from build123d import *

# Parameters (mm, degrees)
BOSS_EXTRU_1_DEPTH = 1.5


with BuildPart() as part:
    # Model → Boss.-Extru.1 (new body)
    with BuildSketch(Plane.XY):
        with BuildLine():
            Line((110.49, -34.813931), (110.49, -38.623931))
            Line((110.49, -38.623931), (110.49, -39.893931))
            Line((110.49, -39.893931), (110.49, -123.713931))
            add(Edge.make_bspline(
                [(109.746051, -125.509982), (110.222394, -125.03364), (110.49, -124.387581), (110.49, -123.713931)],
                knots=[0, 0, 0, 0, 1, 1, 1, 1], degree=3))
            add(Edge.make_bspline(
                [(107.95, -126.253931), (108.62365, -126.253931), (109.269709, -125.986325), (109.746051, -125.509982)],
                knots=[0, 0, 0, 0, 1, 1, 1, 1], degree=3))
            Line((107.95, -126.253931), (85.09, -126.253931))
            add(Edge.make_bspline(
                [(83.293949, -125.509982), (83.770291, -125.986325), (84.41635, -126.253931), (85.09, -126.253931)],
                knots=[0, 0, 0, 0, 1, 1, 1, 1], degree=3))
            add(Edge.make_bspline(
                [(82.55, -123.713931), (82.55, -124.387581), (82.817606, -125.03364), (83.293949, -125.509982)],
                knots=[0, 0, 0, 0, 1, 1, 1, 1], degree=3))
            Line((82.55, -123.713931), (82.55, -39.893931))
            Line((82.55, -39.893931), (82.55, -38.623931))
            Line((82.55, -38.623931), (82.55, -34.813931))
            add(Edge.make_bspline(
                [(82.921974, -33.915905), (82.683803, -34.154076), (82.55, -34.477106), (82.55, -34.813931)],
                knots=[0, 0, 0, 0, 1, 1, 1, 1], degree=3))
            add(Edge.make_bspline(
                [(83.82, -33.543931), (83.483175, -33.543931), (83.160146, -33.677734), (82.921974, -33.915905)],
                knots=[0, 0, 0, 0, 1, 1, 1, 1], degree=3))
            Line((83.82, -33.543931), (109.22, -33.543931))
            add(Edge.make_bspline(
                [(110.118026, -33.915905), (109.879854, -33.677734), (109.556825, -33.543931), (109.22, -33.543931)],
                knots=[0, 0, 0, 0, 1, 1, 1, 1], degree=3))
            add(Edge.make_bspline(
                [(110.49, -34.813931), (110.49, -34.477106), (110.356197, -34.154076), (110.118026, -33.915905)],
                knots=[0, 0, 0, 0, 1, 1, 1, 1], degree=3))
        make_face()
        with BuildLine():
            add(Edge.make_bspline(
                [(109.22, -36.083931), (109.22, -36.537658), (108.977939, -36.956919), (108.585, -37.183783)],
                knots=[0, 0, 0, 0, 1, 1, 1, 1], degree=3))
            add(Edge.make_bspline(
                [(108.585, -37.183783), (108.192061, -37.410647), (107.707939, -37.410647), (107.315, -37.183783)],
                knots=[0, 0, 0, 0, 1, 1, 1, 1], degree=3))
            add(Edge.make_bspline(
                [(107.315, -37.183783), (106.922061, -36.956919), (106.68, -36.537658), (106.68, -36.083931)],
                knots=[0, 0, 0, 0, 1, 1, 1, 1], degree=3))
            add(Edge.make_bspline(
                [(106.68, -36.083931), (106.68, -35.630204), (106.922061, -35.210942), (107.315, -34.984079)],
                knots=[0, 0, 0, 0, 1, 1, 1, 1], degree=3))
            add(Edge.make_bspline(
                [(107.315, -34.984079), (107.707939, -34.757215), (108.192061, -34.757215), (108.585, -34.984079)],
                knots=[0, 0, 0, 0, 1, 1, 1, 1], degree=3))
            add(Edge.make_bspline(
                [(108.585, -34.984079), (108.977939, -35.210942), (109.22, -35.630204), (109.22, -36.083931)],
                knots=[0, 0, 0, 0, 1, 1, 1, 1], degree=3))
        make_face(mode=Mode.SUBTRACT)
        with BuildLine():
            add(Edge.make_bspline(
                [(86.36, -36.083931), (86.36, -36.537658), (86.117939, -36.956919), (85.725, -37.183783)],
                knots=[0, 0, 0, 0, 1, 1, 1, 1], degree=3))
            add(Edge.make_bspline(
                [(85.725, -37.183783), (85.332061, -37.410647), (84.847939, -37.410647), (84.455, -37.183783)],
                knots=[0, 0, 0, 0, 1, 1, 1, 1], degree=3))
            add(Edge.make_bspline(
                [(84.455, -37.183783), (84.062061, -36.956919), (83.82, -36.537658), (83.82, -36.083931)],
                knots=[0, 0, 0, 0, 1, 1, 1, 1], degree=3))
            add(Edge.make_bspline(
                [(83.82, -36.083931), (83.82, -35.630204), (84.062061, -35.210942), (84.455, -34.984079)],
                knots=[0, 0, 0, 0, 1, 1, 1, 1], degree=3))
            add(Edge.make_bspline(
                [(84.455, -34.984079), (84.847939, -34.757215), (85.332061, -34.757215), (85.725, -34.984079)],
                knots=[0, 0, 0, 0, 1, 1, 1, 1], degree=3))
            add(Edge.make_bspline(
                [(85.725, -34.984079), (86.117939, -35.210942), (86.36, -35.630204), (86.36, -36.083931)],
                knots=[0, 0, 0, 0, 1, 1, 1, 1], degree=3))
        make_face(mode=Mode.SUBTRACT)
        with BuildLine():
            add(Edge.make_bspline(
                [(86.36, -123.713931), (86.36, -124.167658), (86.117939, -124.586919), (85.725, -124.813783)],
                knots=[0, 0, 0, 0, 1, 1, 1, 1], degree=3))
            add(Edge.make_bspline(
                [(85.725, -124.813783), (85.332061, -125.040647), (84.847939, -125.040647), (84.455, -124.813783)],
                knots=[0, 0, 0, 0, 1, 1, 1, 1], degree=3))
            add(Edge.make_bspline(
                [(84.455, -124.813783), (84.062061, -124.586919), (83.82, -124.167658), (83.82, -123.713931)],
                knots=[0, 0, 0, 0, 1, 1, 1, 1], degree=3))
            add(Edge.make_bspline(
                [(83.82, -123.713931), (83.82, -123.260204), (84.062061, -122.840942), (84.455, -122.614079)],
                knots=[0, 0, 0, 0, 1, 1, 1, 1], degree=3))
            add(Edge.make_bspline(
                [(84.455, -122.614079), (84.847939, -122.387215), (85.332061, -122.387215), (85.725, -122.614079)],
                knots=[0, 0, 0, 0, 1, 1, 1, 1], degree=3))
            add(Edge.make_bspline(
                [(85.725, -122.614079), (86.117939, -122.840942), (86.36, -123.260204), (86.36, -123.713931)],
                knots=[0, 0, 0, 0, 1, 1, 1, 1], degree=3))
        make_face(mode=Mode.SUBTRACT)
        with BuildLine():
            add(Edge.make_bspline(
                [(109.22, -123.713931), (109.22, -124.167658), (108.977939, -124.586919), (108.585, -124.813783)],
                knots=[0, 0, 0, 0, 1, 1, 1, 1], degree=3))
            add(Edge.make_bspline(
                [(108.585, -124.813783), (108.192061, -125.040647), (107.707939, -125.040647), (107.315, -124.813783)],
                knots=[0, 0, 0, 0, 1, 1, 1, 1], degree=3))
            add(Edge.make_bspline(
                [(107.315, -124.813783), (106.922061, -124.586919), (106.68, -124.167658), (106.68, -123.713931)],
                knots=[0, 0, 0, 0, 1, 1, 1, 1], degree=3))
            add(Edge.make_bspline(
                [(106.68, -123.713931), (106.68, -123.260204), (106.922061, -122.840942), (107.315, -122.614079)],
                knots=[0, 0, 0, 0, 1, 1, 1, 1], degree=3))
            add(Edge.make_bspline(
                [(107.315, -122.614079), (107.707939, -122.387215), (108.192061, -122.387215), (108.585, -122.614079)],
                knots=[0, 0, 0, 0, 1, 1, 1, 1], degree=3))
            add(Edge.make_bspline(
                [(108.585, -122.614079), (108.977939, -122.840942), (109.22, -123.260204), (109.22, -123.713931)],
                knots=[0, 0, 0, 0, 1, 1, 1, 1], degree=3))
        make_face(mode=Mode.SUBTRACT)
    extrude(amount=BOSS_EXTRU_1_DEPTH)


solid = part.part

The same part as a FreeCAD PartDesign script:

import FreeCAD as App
import Part
import Sketcher
from FreeCAD import Vector

doc = App.newDocument("Part")
body = doc.addObject("PartDesign::Body", "Body")

# Sketch on XY plane
sketch1 = doc.addObject("Sketcher::SketchObject", "Sketch")
body.addObject(sketch1)
sketch1.AttachmentSupport = (doc.XY_Plane, [""])
sketch1.MapMode = "FlatFace"
sketch1.addGeometry(Part.LineSegment(Vector(110.49, -123.713931, 0), Vector(110.49, -34.813931, 0)), False)
sketch1.addGeometry(Part.BSplineCurve([Vector(110.49, -34.813931, 0), Vector(110.49, -34.477106, 0), Vector(110.356197, -34.154076, 0), Vector(110.118026, -33.915905, 0)], [4, 4], [0, 1], False, 3, [1, 1, 1, 1], False), False)
sketch1.addGeometry(Part.BSplineCurve([Vector(110.118026, -33.915905, 0), Vector(109.879854, -33.677734, 0), Vector(109.556825, -33.543931, 0), Vector(109.22, -33.543931, 0)], [4, 4], [0, 1], False, 3, [1, 1, 1, 1], False), False)
sketch1.addGeometry(Part.LineSegment(Vector(109.22, -33.543931, 0), Vector(83.82, -33.543931, 0)), False)
sketch1.addGeometry(Part.BSplineCurve([Vector(83.82, -33.543931, 0), Vector(83.483175, -33.543931, 0), Vector(83.160146, -33.677734, 0), Vector(82.921974, -33.915905, 0)], [4, 4], [0, 1], False, 3, [1, 1, 1, 1], False), False)
sketch1.addGeometry(Part.BSplineCurve([Vector(82.921974, -33.915905, 0), Vector(82.683803, -34.154076, 0), Vector(82.55, -34.477106, 0), Vector(82.55, -34.813931, 0)], [4, 4], [0, 1], False, 3, [1, 1, 1, 1], False), False)
sketch1.addGeometry(Part.LineSegment(Vector(82.55, -34.813931, 0), Vector(82.55, -123.713931, 0)), False)
sketch1.addGeometry(Part.BSplineCurve([Vector(82.55, -123.713931, 0), Vector(82.55, -124.387581, 0), Vector(82.817606, -125.03364, 0), Vector(83.293949, -125.509982, 0)], [4, 4], [0, 1], False, 3, [1, 1, 1, 1], False), False)
sketch1.addGeometry(Part.BSplineCurve([Vector(83.293949, -125.509982, 0), Vector(83.770291, -125.986325, 0), Vector(84.41635, -126.253931, 0), Vector(85.09, -126.253931, 0)], [4, 4], [0, 1], False, 3, [1, 1, 1, 1], False), False)
sketch1.addGeometry(Part.LineSegment(Vector(85.09, -126.253931, 0), Vector(107.95, -126.253931, 0)), False)
sketch1.addGeometry(Part.BSplineCurve([Vector(107.95, -126.253931, 0), Vector(108.62365, -126.253931, 0), Vector(109.269709, -125.986325, 0), Vector(109.746051, -125.509982, 0)], [4, 4], [0, 1], False, 3, [1, 1, 1, 1], False), False)
sketch1.addGeometry(Part.BSplineCurve([Vector(109.746051, -125.509982, 0), Vector(110.222394, -125.03364, 0), Vector(110.49, -124.387581, 0), Vector(110.49, -123.713931, 0)], [4, 4], [0, 1], False, 3, [1, 1, 1, 1], False), False)
sketch1.addGeometry(Part.BSplineCurve([Vector(107.315, -122.614079, 0), Vector(107.707939, -122.387215, 0), Vector(108.192061, -122.387215, 0), Vector(108.585, -122.614079, 0)], [4, 4], [0, 1], False, 3, [1, 1, 1, 1], False), False)
sketch1.addGeometry(Part.BSplineCurve([Vector(108.585, -122.614079, 0), Vector(108.977939, -122.840942, 0), Vector(109.22, -123.260204, 0), Vector(109.22, -124.167658, 0), Vector(108.977939, -124.586919, 0), Vector(108.192061, -125.040647, 0), Vector(107.707939, -125.040647, 0), Vector(106.922061, -124.586919, 0), Vector(106.68, -124.167658, 0), Vector(106.68, -123.260204, 0), Vector(106.922061, -122.840942, 0), Vector(107.315, -122.614079, 0)], [4, 2, 2, 2, 2, 4], [0, 1, 2, 3, 4, 5], False, 3, [1, 1, 1, 1, 1, 1, 1, 1, 1, 1, 1, 1], False), False)
sketch1.addGeometry(Part.BSplineCurve([Vector(84.455, -122.614079, 0), Vector(84.847939, -122.387215, 0), Vector(85.332061, -122.387215, 0), Vector(85.725, -122.614079, 0)], [4, 4], [0, 1], False, 3, [1, 1, 1, 1], False), False)
sketch1.addGeometry(Part.BSplineCurve([Vector(85.725, -122.614079, 0), Vector(86.117939, -122.840942, 0), Vector(86.36, -123.260204, 0), Vector(86.36, -124.167658, 0), Vector(86.117939, -124.586919, 0), Vector(85.332061, -125.040647, 0), Vector(84.847939, -125.040647, 0), Vector(84.062061, -124.586919, 0), Vector(83.82, -124.167658, 0), Vector(83.82, -123.260204, 0), Vector(84.062061, -122.840942, 0), Vector(84.455, -122.614079, 0)], [4, 2, 2, 2, 2, 4], [0, 1, 2, 3, 4, 5], False, 3, [1, 1, 1, 1, 1, 1, 1, 1, 1, 1, 1, 1], False), False)
sketch1.addGeometry(Part.BSplineCurve([Vector(107.315, -34.984079, 0), Vector(107.707939, -34.757215, 0), Vector(108.192061, -34.757215, 0), Vector(108.585, -34.984079, 0)], [4, 4], [0, 1], False, 3, [1, 1, 1, 1], False), False)
sketch1.addGeometry(Part.BSplineCurve([Vector(108.585, -34.984079, 0), Vector(108.977939, -35.210942, 0), Vector(109.22, -35.630204, 0), Vector(109.22, -36.537658, 0), Vector(108.977939, -36.956919, 0), Vector(108.192061, -37.410647, 0), Vector(107.707939, -37.410647, 0), Vector(106.922061, -36.956919, 0), Vector(106.68, -36.537658, 0), Vector(106.68, -35.630204, 0), Vector(106.922061, -35.210942, 0), Vector(107.315, -34.984079, 0)], [4, 2, 2, 2, 2, 4], [0, 1, 2, 3, 4, 5], False, 3, [1, 1, 1, 1, 1, 1, 1, 1, 1, 1, 1, 1], False), False)
sketch1.addGeometry(Part.BSplineCurve([Vector(84.455, -34.984079, 0), Vector(84.847939, -34.757215, 0), Vector(85.332061, -34.757215, 0), Vector(85.725, -34.984079, 0)], [4, 4], [0, 1], False, 3, [1, 1, 1, 1], False), False)
sketch1.addGeometry(Part.BSplineCurve([Vector(85.725, -34.984079, 0), Vector(86.117939, -35.210942, 0), Vector(86.36, -35.630204, 0), Vector(86.36, -36.537658, 0), Vector(86.117939, -36.956919, 0), Vector(85.332061, -37.410647, 0), Vector(84.847939, -37.410647, 0), Vector(84.062061, -36.956919, 0), Vector(83.82, -36.537658, 0), Vector(83.82, -35.630204, 0), Vector(84.062061, -35.210942, 0), Vector(84.455, -34.984079, 0)], [4, 2, 2, 2, 2, 4], [0, 1, 2, 3, 4, 5], False, 3, [1, 1, 1, 1, 1, 1, 1, 1, 1, 1, 1, 1], False), False)
sketch1.addConstraint(Sketcher.Constraint("Block", 1))
sketch1.addConstraint(Sketcher.Constraint("Block", 2))
sketch1.addConstraint(Sketcher.Constraint("Block", 4))
sketch1.addConstraint(Sketcher.Constraint("Block", 5))
sketch1.addConstraint(Sketcher.Constraint("Block", 7))
sketch1.addConstraint(Sketcher.Constraint("Block", 8))
sketch1.addConstraint(Sketcher.Constraint("Block", 10))
sketch1.addConstraint(Sketcher.Constraint("Block", 11))
sketch1.addConstraint(Sketcher.Constraint("Block", 12))
sketch1.addConstraint(Sketcher.Constraint("Block", 13))
sketch1.addConstraint(Sketcher.Constraint("Block", 14))
sketch1.addConstraint(Sketcher.Constraint("Block", 15))
sketch1.addConstraint(Sketcher.Constraint("Block", 16))
sketch1.addConstraint(Sketcher.Constraint("Block", 17))
sketch1.addConstraint(Sketcher.Constraint("Block", 18))
sketch1.addConstraint(Sketcher.Constraint("Block", 19))
sketch1.addConstraint(Sketcher.Constraint("Coincident", 0, 2, 1, 1))
sketch1.addConstraint(Sketcher.Constraint("Coincident", 2, 2, 3, 1))
sketch1.addConstraint(Sketcher.Constraint("Coincident", 3, 2, 4, 1))
sketch1.addConstraint(Sketcher.Constraint("Coincident", 5, 2, 6, 1))
sketch1.addConstraint(Sketcher.Constraint("Coincident", 6, 2, 7, 1))
sketch1.addConstraint(Sketcher.Constraint("Coincident", 8, 2, 9, 1))
sketch1.addConstraint(Sketcher.Constraint("Coincident", 9, 2, 10, 1))
sketch1.addConstraint(Sketcher.Constraint("Coincident", 11, 2, 0, 1))
pad1 = doc.addObject("PartDesign::Pad", "Pad")
body.addObject(pad1)
pad1.Profile = sketch1
pad1.Length = 1.5

doc.recompute()
